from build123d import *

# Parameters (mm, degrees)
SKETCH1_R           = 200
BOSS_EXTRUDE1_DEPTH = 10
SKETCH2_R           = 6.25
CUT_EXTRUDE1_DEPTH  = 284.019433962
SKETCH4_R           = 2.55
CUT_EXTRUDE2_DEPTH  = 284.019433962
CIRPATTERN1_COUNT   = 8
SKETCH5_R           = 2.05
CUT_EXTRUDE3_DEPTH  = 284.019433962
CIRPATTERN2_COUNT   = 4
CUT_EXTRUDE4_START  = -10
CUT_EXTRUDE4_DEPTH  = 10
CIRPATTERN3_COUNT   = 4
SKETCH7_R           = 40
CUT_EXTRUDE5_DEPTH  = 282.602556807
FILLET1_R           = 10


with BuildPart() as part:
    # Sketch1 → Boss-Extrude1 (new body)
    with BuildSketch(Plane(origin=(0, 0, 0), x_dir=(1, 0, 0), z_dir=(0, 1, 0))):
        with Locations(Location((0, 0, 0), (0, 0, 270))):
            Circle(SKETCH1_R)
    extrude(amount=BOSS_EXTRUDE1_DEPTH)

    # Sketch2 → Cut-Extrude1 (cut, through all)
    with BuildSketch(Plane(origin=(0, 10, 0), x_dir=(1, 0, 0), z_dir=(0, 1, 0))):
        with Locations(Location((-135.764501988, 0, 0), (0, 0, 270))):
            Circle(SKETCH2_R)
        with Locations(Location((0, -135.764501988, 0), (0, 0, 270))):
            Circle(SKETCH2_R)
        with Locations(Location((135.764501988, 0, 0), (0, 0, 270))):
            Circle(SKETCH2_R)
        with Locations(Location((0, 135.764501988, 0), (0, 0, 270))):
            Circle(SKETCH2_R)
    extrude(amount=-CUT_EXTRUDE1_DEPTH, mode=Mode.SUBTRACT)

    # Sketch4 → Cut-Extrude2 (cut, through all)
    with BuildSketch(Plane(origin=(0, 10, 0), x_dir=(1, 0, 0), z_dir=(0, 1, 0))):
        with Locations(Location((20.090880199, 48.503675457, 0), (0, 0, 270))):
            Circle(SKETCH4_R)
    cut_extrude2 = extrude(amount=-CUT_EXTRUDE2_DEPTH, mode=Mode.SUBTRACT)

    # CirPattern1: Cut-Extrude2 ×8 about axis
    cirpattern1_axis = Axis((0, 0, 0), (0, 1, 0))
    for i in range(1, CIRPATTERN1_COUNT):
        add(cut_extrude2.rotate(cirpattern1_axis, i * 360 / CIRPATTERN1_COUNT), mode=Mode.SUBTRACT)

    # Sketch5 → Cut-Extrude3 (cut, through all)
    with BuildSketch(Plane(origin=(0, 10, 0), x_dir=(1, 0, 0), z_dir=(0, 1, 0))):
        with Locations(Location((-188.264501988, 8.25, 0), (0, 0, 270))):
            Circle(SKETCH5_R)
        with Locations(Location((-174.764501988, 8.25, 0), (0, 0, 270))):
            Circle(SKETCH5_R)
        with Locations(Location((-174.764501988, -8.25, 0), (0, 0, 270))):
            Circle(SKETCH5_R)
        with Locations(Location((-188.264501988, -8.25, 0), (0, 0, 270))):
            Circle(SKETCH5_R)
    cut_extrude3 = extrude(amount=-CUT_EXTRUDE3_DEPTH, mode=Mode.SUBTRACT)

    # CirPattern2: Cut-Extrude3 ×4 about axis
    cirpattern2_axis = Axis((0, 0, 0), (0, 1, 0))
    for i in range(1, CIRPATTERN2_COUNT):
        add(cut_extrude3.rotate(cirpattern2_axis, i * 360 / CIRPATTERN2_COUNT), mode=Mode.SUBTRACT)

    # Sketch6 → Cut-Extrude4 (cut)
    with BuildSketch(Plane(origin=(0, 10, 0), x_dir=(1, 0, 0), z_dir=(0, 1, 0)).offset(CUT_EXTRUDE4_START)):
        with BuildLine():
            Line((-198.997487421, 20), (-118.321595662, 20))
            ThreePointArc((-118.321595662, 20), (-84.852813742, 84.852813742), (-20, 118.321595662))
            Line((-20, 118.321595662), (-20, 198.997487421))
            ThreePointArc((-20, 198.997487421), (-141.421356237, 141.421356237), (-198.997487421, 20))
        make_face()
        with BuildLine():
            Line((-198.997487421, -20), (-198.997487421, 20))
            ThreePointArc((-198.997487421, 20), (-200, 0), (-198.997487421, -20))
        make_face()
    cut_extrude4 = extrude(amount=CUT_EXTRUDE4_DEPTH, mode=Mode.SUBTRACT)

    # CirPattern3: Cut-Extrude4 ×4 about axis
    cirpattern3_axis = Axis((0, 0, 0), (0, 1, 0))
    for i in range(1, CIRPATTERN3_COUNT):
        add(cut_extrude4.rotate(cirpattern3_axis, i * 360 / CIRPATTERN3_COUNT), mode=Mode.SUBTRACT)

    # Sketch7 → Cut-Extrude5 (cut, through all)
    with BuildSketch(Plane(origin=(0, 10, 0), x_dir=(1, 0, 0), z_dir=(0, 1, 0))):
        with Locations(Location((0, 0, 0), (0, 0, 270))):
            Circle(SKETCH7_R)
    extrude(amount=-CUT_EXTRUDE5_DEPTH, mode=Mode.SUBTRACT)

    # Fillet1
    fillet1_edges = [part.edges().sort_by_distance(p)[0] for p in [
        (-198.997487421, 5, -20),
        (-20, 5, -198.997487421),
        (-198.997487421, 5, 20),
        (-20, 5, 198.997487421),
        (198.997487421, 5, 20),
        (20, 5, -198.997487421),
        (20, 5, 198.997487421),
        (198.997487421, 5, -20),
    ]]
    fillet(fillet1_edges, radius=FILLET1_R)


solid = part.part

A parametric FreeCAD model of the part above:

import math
import FreeCAD as App
import Part
import Sketcher
from FreeCAD import Vector
Q = App.Units.Quantity


def edges_at(feature, points):
    """Names of the edges that pass closest to the given points."""
    edges = feature.Shape.Edges
    near = lambda p: min(range(len(edges)), key=lambda i: edges[i].distToShape(Part.Vertex(*p))[0])
    return sorted({f"Edge{near(p) + 1}" for p in points})

doc = App.newDocument("Part")
params = doc.addObject("Spreadsheet::Sheet", "Params")
for row, (alias, value) in enumerate([
    ("sketch1_diameter", "400 mm"),
    ("pad1_length", "10 mm"),
    ("sketch2_diameter", "12.5 mm"),
    ("sketch3_diameter", "5.1 mm"),
    ("sketch4_diameter", "4.1 mm"),
    ("sketch5_radius", "120 mm"),
    ("sketch5_radius2", "200 mm"),
    ("sketch5_height", "40 mm"),
    ("pocket4_length", "10 mm"),
    ("sketch6_diameter", "80 mm"),
    ("fillet_radius", "10 mm"),
], start=1):
    params.set(f"A{row}", alias)
    params.set(f"B{row}", "=" + value)
    params.setAlias(f"B{row}", alias)

body = doc.addObject("PartDesign::Body", "Body")

sketch1 = body.newObject("Sketcher::SketchObject", "Sketch")
sketch1.AttachmentSupport = (doc.getObject("XZ_Plane"), [""])
sketch1.MapMode = "FlatFace"
sketch1.addGeometry(Part.Circle(Vector(0, 0, 0), Vector(0, 0, 1), 200), False)
sketch1.addConstraint([
    Sketcher.Constraint("Coincident", 0, 3, -1, 1),
    Sketcher.Constraint("Diameter", 0, Q("400 mm")),
])
sketch1.setExpression("Constraints[1]", "Params.sketch1_diameter")
pad1 = body.newObject("PartDesign::Pad", "Pad")
pad1.Profile = sketch1
pad1.setExpression("Length", "Params.pad1_length")
pad1.Reversed = True

sketch2 = body.newObject("Sketcher::SketchObject", "Sketch001")
sketch2.AttachmentSupport = (doc.getObject("XZ_Plane"), [""])
sketch2.MapMode = "FlatFace"
sketch2.AttachmentOffset = App.Placement(Vector(0, 0, -10), App.Rotation())
sketch2.addGeometry([
    Part.Circle(Vector(-135.764502, 0, 0), Vector(0, 0, 1), 6.25),
    Part.Circle(Vector(0, 135.764502, 0), Vector(0, 0, 1), 6.25),
    Part.Circle(Vector(135.764502, 0, 0), Vector(0, 0, 1), 6.25),
    Part.Circle(Vector(0, -135.764502, 0), Vector(0, 0, 1), 6.25),
], False)
sketch2.addConstraint([
    Sketcher.Constraint("Equal", 0, 1),
    Sketcher.Constraint("Equal", 1, 2),
    Sketcher.Constraint("Equal", 2, 3),
    Sketcher.Constraint("Symmetric", 0, 3, 2, 3, -1, 1),
    Sketcher.Constraint("Symmetric", 1, 3, 3, 3, -1, 1),
    Sketcher.Constraint("PointOnObject", 0, 3, -1),
    Sketcher.Constraint("PointOnObject", 1, 3, -2),
    Sketcher.Constraint("Diameter", 0, Q("12.5 mm")),
    Sketcher.Constraint("DistanceX", 0, 3, -1, 1, Q("135.764502 mm")),
    Sketcher.Constraint("DistanceY", -1, 1, 1, 3, Q("135.764502 mm")),
])
sketch2.setExpression("Constraints[7]", "Params.sketch2_diameter")
pocket1 = body.newObject("PartDesign::Pocket", "Pocket")
pocket1.Profile = sketch2
pocket1.Type = "ThroughAll"
pocket1.Reversed = True

sketch3 = body.newObject("Sketcher::SketchObject", "Sketch002")
sketch3.AttachmentSupport = (doc.getObject("XZ_Plane"), [""])
sketch3.MapMode = "FlatFace"
sketch3.AttachmentOffset = App.Placement(Vector(0, 0, -10), App.Rotation())
sketch3.addGeometry(Part.Circle(Vector(20.09088, -48.503675, 0), Vector(0, 0, 1), 2.55), False)
sketch3.addConstraint([
    Sketcher.Constraint("Diameter", 0, Q("5.1 mm")),
    Sketcher.Constraint("DistanceX", -1, 1, 0, 3, Q("20.09088 mm")),
    Sketcher.Constraint("DistanceY", 0, 3, -1, 1, Q("48.503675 mm")),
])
sketch3.setExpression("Constraints[0]", "Params.sketch3_diameter")
pocket2 = body.newObject("PartDesign::Pocket", "Pocket001")
pocket2.Profile = sketch3
pocket2.Type = "ThroughAll"
pocket2.Reversed = True
doc.recompute()

polarpattern = body.newObject("PartDesign::PolarPattern", "PolarPattern")
polarpattern.Originals = [pocket2]
polarpattern.Axis = (doc.getObject("Y_Axis"), [""])
polarpattern.Angle = 360
polarpattern.Occurrences = 8
body.Tip = polarpattern

sketch4 = body.newObject("Sketcher::SketchObject", "Sketch003")
sketch4.AttachmentSupport = (doc.getObject("XZ_Plane"), [""])
sketch4.MapMode = "FlatFace"
sketch4.AttachmentOffset = App.Placement(Vector(0, 0, -10), App.Rotation())
sketch4.addGeometry([
    Part.Circle(Vector(-188.264502, -8.25, 0), Vector(0, 0, 1), 2.05),
    Part.Circle(Vector(-174.764502, -8.25, 0), Vector(0, 0, 1), 2.05),
    Part.Circle(Vector(-174.764502, 8.25, 0), Vector(0, 0, 1), 2.05),
    Part.Circle(Vector(-188.264502, 8.25, 0), Vector(0, 0, 1), 2.05),
], False)
sketch4.addConstraint([
    Sketcher.Constraint("Equal", 0, 1),
    Sketcher.Constraint("Equal", 1, 2),
    Sketcher.Constraint("Equal", 2, 3),
    Sketcher.Constraint("Symmetric", 1, 3, 2, 3, -1),
    Sketcher.Constraint("Symmetric", 0, 3, 3, 3, -1),
    Sketcher.Constraint("Horizontal", 0, 3, 1, 3),
    Sketcher.Constraint("Diameter", 0, Q("4.1 mm")),
    Sketcher.Constraint("DistanceX", 0, 3, 1, 3, Q("13.5 mm")),
    Sketcher.Constraint("DistanceY", 1, 3, 2, 3, Q("16.5 mm")),
    Sketcher.Constraint("DistanceX", 0, 3, -1, 1, Q("188.264502 mm")),
])
sketch4.setExpression("Constraints[6]", "Params.sketch4_diameter")
pocket3 = body.newObject("PartDesign::Pocket", "Pocket002")
pocket3.Profile = sketch4
pocket3.Type = "ThroughAll"
pocket3.Reversed = True
doc.recompute()

polarpattern2 = body.newObject("PartDesign::PolarPattern", "PolarPattern001")
polarpattern2.Originals = [pocket3]
polarpattern2.Axis = (doc.getObject("Y_Axis"), [""])
polarpattern2.Angle = 360
polarpattern2.Occurrences = 4
body.Tip = polarpattern2

sketch5 = body.newObject("Sketcher::SketchObject", "Sketch004")
sketch5.AttachmentSupport = (doc.getObject("XZ_Plane"), [""])
sketch5.MapMode = "FlatFace"
sketch5.addGeometry([
    Part.LineSegment(Vector(-198.997487, -20, 0), Vector(-118.321596, -20, 0)),
    Part.ArcOfCircle(Part.Circle(Vector(0, 0, 0), Vector(0, 0, 1), 120), math.radians(-170.405932), math.radians(-99.594068)),
    Part.LineSegment(Vector(-20, -118.321596, 0), Vector(-20, -198.997487, 0)),
    Part.ArcOfCircle(Part.Circle(Vector(0, 0, 0), Vector(0, 0, 1), 200), math.radians(-174.26083), math.radians(-95.73917)),
    Part.LineSegment(Vector(-198.997487, 20, 0), Vector(-198.997487, -20, 0)),
    Part.ArcOfCircle(Part.Circle(Vector(0, 0, 0), Vector(0, 0, 1), 200), math.radians(174.26083), math.radians(185.73917)),
], False)
sketch5.addConstraint([
    Sketcher.Constraint("Coincident", 0, 2, 1, 1),
    Sketcher.Constraint("Coincident", 1, 2, 2, 1),
    Sketcher.Constraint("Coincident", 2, 2, 3, 2),
    Sketcher.Constraint("Coincident", 3, 1, 0, 1),
    Sketcher.Constraint("Coincident", 4, 1, 5, 1),
    Sketcher.Constraint("Coincident", 5, 2, 4, 2),
    Sketcher.Constraint("Horizontal", 0),
    Sketcher.Constraint("Vertical", 2),
    Sketcher.Constraint("Vertical", 4),
    Sketcher.Constraint("Coincident", 1, 3, -1, 1),
    Sketcher.Constraint("Coincident", 3, 3, -1, 1),
    Sketcher.Constraint("Coincident", 5, 3, -1, 1),
    Sketcher.Constraint("Coincident", 5, 2, 3, 1),
    Sketcher.Constraint("Equal", 0, 2),
    Sketcher.Constraint("Radius", 1, Q("120 mm")),
    Sketcher.Constraint("Radius", 3, Q("200 mm")),
    Sketcher.Constraint("DistanceY", 4, 2, 4, 1, Q("40 mm")),
])
sketch5.setExpression("Constraints[14]", "Params.sketch5_radius")
sketch5.setExpression("Constraints[15]", "Params.sketch5_radius2")
sketch5.setExpression("Constraints[16]", "Params.sketch5_height")
pocket4 = body.newObject("PartDesign::Pocket", "Pocket003")
pocket4.Profile = sketch5
pocket4.setExpression("Length", "Params.pocket4_length")
doc.recompute()

polarpattern3 = body.newObject("PartDesign::PolarPattern", "PolarPattern002")
polarpattern3.Originals = [pocket4]
polarpattern3.Axis = (doc.getObject("Y_Axis"), [""])
polarpattern3.Angle = 360
polarpattern3.Occurrences = 4
body.Tip = polarpattern3

sketch6 = body.newObject("Sketcher::SketchObject", "Sketch005")
sketch6.AttachmentSupport = (doc.getObject("XZ_Plane"), [""])
sketch6.MapMode = "FlatFace"
sketch6.AttachmentOffset = App.Placement(Vector(0, 0, -10), App.Rotation())
sketch6.addGeometry(Part.Circle(Vector(0, 0, 0), Vector(0, 0, 1), 40), False)
sketch6.addConstraint([
    Sketcher.Constraint("Coincident", 0, 3, -1, 1),
    Sketcher.Constraint("Diameter", 0, Q("80 mm")),
])
sketch6.setExpression("Constraints[1]", "Params.sketch6_diameter")
pocket5 = body.newObject("PartDesign::Pocket", "Pocket004")
pocket5.Profile = sketch6
pocket5.Type = "ThroughAll"
pocket5.Reversed = True
doc.recompute()

fillet = body.newObject("PartDesign::Fillet", "Fillet")
fillet.Base = (pocket5, edges_at(pocket5, [
    (-198.997, 5, -20),
    (-20, 5, -198.997),
    (-198.997, 5, 20),
    (-20, 5, 198.997),
    (198.997, 5, 20),
    (20, 5, -198.997),
    (20, 5, 198.997),
    (198.997, 5, -20),
]))
fillet.setExpression("Radius", "Params.fillet_radius")

doc.recompute()
